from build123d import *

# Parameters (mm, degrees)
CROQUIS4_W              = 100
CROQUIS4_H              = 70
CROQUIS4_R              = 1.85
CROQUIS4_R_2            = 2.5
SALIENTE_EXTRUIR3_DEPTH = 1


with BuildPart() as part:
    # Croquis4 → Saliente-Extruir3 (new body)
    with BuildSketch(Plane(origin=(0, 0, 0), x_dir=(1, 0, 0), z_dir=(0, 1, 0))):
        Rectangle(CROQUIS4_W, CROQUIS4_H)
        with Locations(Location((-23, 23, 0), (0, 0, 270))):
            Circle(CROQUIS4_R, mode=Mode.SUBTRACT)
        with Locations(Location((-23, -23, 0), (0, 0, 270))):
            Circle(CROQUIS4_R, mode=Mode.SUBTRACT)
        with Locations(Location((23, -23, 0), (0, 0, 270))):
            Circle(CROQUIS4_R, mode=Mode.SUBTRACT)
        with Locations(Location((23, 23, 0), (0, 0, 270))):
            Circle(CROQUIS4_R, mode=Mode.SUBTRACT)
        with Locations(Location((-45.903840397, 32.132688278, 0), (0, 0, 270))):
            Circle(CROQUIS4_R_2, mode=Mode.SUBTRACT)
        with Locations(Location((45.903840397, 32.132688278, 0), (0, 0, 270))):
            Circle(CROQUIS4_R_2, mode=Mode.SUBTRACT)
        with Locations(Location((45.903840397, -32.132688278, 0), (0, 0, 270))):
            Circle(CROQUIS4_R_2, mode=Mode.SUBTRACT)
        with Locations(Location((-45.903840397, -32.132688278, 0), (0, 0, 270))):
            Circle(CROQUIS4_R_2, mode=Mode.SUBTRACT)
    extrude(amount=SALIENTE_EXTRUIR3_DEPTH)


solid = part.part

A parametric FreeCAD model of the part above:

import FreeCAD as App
import Part
import Sketcher

V = App.Vector


def add_polygon(sketch, points):
    """Adds a closed chain of lines whose ends are joined by coincident constraints."""
    first, n = sketch.GeometryCount, len(points)
    for a, b in zip(points, points[1:] + points[:1]):
        sketch.addGeometry(Part.LineSegment(App.Vector(*a, 0), App.Vector(*b, 0)), False)
    for i in range(n):
        sketch.addConstraint(Sketcher.Constraint("Coincident", first + i, 2, first + (i + 1) % n, 1))

doc = App.newDocument("Part")
body = doc.addObject("PartDesign::Body", "Body")

sketch1 = doc.addObject("Sketcher::SketchObject", "Sketch")
body.addObject(sketch1)
sketch1.AttachmentSupport = (doc.XZ_Plane, [""])
sketch1.MapMode = "FlatFace"
add_polygon(sketch1, [(-50, -35), (-50, 35), (50, 35), (50, -35)])
sketch1.addGeometry(Part.Circle(V(-45.90384, 32.132688, 0), V(0, 0, 1), 2.5), False)
sketch1.addGeometry(Part.Circle(V(-23, 23, 0), V(0, 0, 1), 1.85), False)
sketch1.addGeometry(Part.Circle(V(23, 23, 0), V(0, 0, 1), 1.85), False)
sketch1.addGeometry(Part.Circle(V(45.90384, 32.132688, 0), V(0, 0, 1), 2.5), False)
sketch1.addGeometry(Part.Circle(V(-45.90384, -32.132688, 0), V(0, 0, 1), 2.5), False)
sketch1.addGeometry(Part.Circle(V(-23, -23, 0), V(0, 0, 1), 1.85), False)
sketch1.addGeometry(Part.Circle(V(23, -23, 0), V(0, 0, 1), 1.85), False)
sketch1.addGeometry(Part.Circle(V(45.90384, -32.132688, 0), V(0, 0, 1), 2.5), False)
sketch1.addConstraint(Sketcher.Constraint("Vertical", 0))
sketch1.addConstraint(Sketcher.Constraint("Horizontal", 1))
sketch1.addConstraint(Sketcher.Constraint("Vertical", 2))
sketch1.addConstraint(Sketcher.Constraint("Horizontal", 3))
sketch1.addConstraint(Sketcher.Constraint("Equal", 5, 6))
sketch1.addConstraint(Sketcher.Constraint("Equal", 4, 7))
sketch1.addConstraint(Sketcher.Constraint("Equal", 7, 8))
sketch1.addConstraint(Sketcher.Constraint("Equal", 6, 9))
sketch1.addConstraint(Sketcher.Constraint("Equal", 9, 10))
sketch1.addConstraint(Sketcher.Constraint("Equal", 8, 11))
sketch1.addConstraint(Sketcher.Constraint("Symmetric", 7, 3, 8, 3, -1, 1))
sketch1.addConstraint(Sketcher.Constraint("Symmetric", 6, 3, 9, 3, -1, 1))
sketch1.addConstraint(Sketcher.Constraint("Symmetric", 5, 3, 10, 3, -1, 1))
sketch1.addConstraint(Sketcher.Constraint("Symmetric", 4, 3, 11, 3, -1, 1))
sketch1.addConstraint(Sketcher.Constraint("Symmetric", 0, 2, 2, 2, -1, 1))
sketch1.addConstraint(Sketcher.Constraint("Symmetric", 5, 3, 6, 3, -2))
sketch1.addConstraint(Sketcher.Constraint("Symmetric", 4, 3, 7, 3, -2))
sketch1.addConstraint(Sketcher.Constraint("Diameter", 4, 5.0))
sketch1.addConstraint(Sketcher.Constraint("Diameter", 5, 3.7))
sketch1.addConstraint(Sketcher.Constraint("DistanceX", 1, 1, 1, 2, 100.0))
sketch1.addConstraint(Sketcher.Constraint("DistanceY", 0, 1, 0, 2, 70.0))
sketch1.addConstraint(Sketcher.Constraint("DistanceX", 5, 3, -1, 1, 23.0))
sketch1.addConstraint(Sketcher.Constraint("DistanceY", -1, 1, 5, 3, 23.0))
sketch1.addConstraint(Sketcher.Constraint("DistanceX", 4, 3, -1, 1, 45.90384))
sketch1.addConstraint(Sketcher.Constraint("DistanceY", -1, 1, 4, 3, 32.132688))
pad1 = doc.addObject("PartDesign::Pad", "Pad")
body.addObject(pad1)
pad1.Profile = sketch1
pad1.Length = 1
pad1.Reversed = True

doc.recompute()
